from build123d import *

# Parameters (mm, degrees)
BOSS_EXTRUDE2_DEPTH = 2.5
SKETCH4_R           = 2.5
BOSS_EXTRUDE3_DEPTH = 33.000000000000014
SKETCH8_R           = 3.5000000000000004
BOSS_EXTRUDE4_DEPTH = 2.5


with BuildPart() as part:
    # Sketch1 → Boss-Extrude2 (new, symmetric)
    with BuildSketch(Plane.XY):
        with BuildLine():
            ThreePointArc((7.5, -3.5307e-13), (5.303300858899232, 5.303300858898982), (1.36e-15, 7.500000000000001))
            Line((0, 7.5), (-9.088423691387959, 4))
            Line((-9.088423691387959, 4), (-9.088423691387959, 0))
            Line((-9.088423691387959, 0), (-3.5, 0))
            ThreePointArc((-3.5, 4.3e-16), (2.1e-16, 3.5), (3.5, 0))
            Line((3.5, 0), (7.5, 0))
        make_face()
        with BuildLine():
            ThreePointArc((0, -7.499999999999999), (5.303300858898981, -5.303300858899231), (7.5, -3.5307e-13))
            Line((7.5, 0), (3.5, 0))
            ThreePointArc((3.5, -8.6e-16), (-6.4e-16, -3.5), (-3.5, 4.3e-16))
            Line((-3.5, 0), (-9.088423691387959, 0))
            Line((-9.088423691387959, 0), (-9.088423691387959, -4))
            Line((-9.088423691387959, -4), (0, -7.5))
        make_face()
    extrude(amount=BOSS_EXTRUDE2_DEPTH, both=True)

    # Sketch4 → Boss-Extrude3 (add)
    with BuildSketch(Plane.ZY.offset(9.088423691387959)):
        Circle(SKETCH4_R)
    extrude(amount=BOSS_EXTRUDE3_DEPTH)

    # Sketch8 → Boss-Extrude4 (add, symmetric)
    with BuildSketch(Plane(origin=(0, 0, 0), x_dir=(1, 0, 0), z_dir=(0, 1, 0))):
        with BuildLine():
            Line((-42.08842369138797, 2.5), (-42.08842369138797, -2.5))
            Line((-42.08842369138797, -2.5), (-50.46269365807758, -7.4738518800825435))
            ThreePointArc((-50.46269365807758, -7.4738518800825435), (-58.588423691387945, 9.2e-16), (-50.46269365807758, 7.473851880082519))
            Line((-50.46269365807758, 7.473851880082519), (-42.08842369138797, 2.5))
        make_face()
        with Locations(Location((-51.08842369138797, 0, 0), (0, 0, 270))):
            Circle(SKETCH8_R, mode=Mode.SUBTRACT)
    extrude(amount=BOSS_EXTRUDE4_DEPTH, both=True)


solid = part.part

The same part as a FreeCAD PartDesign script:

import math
import FreeCAD as App
import Part
import Sketcher

doc = App.newDocument("Part")
body = doc.addObject("PartDesign::Body", "Body")

# Sketch on XY plane
sketch1 = body.newObject("Sketcher::SketchObject", "Sketch")
sketch1.AttachmentSupport = (doc.getObject("XY_Plane"), [""])
sketch1.MapMode = "FlatFace"
sketch1.addGeometry(Part.LineSegment(App.Vector(0, 7.5, 0), App.Vector(-9.1, 4, 0)), False)
sketch1.addGeometry(Part.LineSegment(App.Vector(-9.1, 4, 0), App.Vector(-9.1, -4, 0)), False)
sketch1.addGeometry(Part.LineSegment(App.Vector(-9.1, -4, 0), App.Vector(0, -7.5, 0)), False)
sketch1.addGeometry(Part.ArcOfCircle(Part.Circle(App.Vector(0, 0, 0), App.Vector(0, 0, 1), 7.5), math.radians(-90), math.radians(90)), False)
sketch1.addGeometry(Part.Circle(App.Vector(0, 0, 0), App.Vector(0, 0, 1), 3.5), False)
sketch1.addConstraint(Sketcher.Constraint("Coincident", 0, 2, 1, 1))
sketch1.addConstraint(Sketcher.Constraint("Coincident", 1, 2, 2, 1))
sketch1.addConstraint(Sketcher.Constraint("Coincident", 2, 2, 3, 1))
sketch1.addConstraint(Sketcher.Constraint("Coincident", 3, 2, 0, 1))
sketch1.addConstraint(Sketcher.Constraint("Vertical", 1))
sketch1.addConstraint(Sketcher.Constraint("Coincident", 3, 3, -1, 1))
sketch1.addConstraint(Sketcher.Constraint("Coincident", 4, 3, -1, 1))
sketch1.addConstraint(Sketcher.Constraint("PointOnObject", 2, 2, -2))
sketch1.addConstraint(Sketcher.Constraint("PointOnObject", 3, 2, -2))
sketch1.addConstraint(Sketcher.Constraint("Equal", 0, 2))
sketch1.addConstraint(Sketcher.Constraint("Diameter", 4, 7.0))
sketch1.addConstraint(Sketcher.Constraint("Radius", 3, 7.5))
sketch1.addConstraint(Sketcher.Constraint("DistanceY", 1, 2, 1, 1, 8.0))
sketch1.addConstraint(Sketcher.Constraint("Distance", 0, 9.739068))
pad1 = body.newObject("PartDesign::Pad", "Pad")
pad1.Profile = sketch1
pad1.Length = 5
pad1.Midplane = True

# Sketch on YZ plane
sketch2 = body.newObject("Sketcher::SketchObject", "Sketch001")
sketch2.AttachmentSupport = (doc.getObject("YZ_Plane"), [""])
sketch2.MapMode = "FlatFace"
sketch2.AttachmentOffset = App.Placement(App.Vector(0, 0, -9.088424), App.Rotation())
sketch2.addGeometry(Part.Circle(App.Vector(0, 0, 0), App.Vector(0, 0, 1), 2.5), False)
sketch2.addConstraint(Sketcher.Constraint("Coincident", 0, 3, -1, 1))
sketch2.addConstraint(Sketcher.Constraint("Diameter", 0, 5.0))
pad2 = body.newObject("PartDesign::Pad", "Pad001")
pad2.Profile = sketch2
pad2.Length = 33
pad2.Reversed = True

# Sketch on XZ plane
sketch3 = body.newObject("Sketcher::SketchObject", "Sketch002")
sketch3.AttachmentSupport = (doc.getObject("XZ_Plane"), [""])
sketch3.MapMode = "FlatFace"
sketch3.addGeometry(Part.LineSegment(App.Vector(-42.1, 2.5, 0), App.Vector(-42.1, -2.5, 0)), False)
sketch3.addGeometry(Part.LineSegment(App.Vector(-42.1, -2.5, 0), App.Vector(-50.5, -7.5, 0)), False)
sketch3.addGeometry(Part.ArcOfCircle(Part.Circle(App.Vector(-51.1, 0, 0), App.Vector(0, 0, 1), 7.5), math.radians(85), math.radians(275)), False)
sketch3.addGeometry(Part.LineSegment(App.Vector(-50.5, 7.5, 0), App.Vector(-42.1, 2.5, 0)), False)
sketch3.addGeometry(Part.Circle(App.Vector(-51.1, 0, 0), App.Vector(0, 0, 1), 3.5), False)
sketch3.addConstraint(Sketcher.Constraint("Coincident", 0, 2, 1, 1))
sketch3.addConstraint(Sketcher.Constraint("Coincident", 1, 2, 2, 2))
sketch3.addConstraint(Sketcher.Constraint("Coincident", 2, 1, 3, 1))
sketch3.addConstraint(Sketcher.Constraint("Coincident", 3, 2, 0, 1))
sketch3.addConstraint(Sketcher.Constraint("Vertical", 0))
sketch3.addConstraint(Sketcher.Constraint("Coincident", 4, 3, 2, 3))
sketch3.addConstraint(Sketcher.Constraint("Symmetric", 1, 2, 2, 1, -1))
sketch3.addConstraint(Sketcher.Constraint("Equal", 1, 3))
sketch3.addConstraint(Sketcher.Constraint("Diameter", 4, 7.0))
sketch3.addConstraint(Sketcher.Constraint("Radius", 2, 7.5))
sketch3.addConstraint(Sketcher.Constraint("DistanceY", 0, 2, 0, 1, 5.0))
sketch3.addConstraint(Sketcher.Constraint("DistanceX", 2, 3, 0, 2, 9.0))
sketch3.addConstraint(Sketcher.Constraint("Distance", 1, 9.74))
sketch3.addConstraint(Sketcher.Constraint("DistanceX", 2, 3, -1, 1, 51.088424))
pad3 = body.newObject("PartDesign::Pad", "Pad002")
pad3.Profile = sketch3
pad3.Length = 5
pad3.Midplane = True

doc.recompute()
